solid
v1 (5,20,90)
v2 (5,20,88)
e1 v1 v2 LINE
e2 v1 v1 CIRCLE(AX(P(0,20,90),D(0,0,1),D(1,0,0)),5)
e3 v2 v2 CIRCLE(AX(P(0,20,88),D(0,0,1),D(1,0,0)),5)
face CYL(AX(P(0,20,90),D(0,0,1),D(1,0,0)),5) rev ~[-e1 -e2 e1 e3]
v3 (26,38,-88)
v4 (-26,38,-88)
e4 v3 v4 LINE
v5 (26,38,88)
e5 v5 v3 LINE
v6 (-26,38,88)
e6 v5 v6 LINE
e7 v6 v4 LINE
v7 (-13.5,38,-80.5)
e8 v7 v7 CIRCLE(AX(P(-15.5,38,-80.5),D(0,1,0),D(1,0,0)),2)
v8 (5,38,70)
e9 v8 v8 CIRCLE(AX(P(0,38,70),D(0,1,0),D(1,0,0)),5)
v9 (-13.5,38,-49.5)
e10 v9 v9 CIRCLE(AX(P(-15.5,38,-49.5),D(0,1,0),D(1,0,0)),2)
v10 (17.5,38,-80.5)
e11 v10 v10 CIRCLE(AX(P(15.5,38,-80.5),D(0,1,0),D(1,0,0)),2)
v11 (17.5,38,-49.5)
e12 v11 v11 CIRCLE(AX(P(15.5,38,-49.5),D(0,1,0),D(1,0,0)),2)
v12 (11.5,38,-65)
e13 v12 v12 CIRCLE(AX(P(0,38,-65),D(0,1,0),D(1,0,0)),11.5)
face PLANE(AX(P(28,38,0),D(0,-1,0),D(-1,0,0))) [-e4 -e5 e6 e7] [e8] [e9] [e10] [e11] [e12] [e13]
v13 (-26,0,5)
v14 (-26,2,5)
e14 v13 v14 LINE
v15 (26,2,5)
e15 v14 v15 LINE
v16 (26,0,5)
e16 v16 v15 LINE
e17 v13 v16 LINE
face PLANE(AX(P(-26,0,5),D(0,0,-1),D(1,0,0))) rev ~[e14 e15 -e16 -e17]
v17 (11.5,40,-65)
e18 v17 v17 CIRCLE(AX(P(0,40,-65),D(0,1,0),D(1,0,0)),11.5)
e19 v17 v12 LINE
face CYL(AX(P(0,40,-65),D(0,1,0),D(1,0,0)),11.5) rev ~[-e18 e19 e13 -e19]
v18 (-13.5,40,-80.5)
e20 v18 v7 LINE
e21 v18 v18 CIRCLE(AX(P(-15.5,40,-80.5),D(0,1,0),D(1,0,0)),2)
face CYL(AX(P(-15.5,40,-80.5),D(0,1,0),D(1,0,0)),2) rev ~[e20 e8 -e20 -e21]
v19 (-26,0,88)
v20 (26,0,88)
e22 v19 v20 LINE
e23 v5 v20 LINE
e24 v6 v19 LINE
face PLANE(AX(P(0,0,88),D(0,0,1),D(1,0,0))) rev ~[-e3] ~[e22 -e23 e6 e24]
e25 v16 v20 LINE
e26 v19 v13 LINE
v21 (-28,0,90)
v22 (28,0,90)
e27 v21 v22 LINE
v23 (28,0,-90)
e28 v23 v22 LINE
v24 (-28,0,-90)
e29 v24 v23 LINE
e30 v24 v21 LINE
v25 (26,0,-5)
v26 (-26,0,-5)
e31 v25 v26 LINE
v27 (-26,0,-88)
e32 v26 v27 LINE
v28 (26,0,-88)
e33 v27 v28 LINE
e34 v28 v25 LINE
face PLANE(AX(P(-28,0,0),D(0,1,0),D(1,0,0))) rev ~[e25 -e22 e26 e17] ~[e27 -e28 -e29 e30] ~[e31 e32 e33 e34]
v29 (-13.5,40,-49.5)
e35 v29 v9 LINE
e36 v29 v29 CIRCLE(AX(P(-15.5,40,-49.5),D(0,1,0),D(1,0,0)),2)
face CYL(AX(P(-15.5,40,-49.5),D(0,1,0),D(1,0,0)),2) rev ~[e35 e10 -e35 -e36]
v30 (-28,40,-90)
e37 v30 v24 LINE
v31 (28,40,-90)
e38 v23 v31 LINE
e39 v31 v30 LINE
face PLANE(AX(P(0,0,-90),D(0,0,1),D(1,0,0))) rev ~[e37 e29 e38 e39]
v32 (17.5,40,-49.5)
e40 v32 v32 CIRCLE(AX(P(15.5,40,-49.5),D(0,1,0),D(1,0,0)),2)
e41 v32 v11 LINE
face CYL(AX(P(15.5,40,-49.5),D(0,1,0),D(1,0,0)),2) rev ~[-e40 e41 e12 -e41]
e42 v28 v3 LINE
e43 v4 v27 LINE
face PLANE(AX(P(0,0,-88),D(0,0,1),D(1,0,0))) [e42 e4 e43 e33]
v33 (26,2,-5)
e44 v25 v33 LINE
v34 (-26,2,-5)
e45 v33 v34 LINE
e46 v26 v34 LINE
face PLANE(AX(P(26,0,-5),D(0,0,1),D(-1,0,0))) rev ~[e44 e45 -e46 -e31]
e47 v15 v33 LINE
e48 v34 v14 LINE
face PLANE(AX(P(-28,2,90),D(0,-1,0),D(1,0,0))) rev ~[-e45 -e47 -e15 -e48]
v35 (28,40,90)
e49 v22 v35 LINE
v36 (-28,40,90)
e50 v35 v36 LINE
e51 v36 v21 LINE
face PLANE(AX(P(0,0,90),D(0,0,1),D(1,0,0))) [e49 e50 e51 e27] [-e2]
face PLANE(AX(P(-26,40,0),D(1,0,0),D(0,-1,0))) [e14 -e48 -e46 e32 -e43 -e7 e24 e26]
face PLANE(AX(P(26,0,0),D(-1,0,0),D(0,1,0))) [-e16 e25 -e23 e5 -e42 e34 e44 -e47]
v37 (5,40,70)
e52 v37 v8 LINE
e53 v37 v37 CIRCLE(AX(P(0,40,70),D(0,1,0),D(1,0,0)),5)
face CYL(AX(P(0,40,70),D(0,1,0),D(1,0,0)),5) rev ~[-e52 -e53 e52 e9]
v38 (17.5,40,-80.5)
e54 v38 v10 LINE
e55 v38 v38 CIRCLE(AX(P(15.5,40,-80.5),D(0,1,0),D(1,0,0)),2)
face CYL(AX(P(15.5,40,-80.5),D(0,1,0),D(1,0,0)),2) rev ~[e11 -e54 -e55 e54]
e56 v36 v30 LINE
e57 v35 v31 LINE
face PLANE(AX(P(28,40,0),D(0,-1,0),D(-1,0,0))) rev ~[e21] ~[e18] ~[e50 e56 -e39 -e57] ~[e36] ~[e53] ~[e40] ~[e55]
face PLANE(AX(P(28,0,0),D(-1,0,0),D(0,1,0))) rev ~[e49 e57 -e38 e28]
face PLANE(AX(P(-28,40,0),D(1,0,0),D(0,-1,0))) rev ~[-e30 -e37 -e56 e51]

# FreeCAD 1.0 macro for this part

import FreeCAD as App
import Part
import Sketcher
Q = App.Units.Quantity


def faces_at(feature, points):
    """Names of the faces that lie closest to the given points."""
    faces = feature.Shape.Faces
    near = lambda p: min(range(len(faces)), key=lambda i: faces[i].distToShape(Part.Vertex(*p))[0])
    return sorted({f"Face{near(p) + 1}" for p in points})


def add_polygon(sketch, points):
    """Adds a closed chain of lines whose ends are joined by coincident constraints."""
    first, n = sketch.GeometryCount, len(points)
    for a, b in zip(points, points[1:] + points[:1]):
        sketch.addGeometry(Part.LineSegment(App.Vector(*a, 0), App.Vector(*b, 0)), False)
    for i in range(n):
        sketch.addConstraint(Sketcher.Constraint("Coincident", first + i, 2, first + (i + 1) % n, 1))

doc = App.newDocument("Part")
body = doc.addObject("PartDesign::Body", "Body")

# Sketch on XY plane
sketch1 = body.newObject("Sketcher::SketchObject", "Sketch")
sketch1.AttachmentSupport = (doc.getObject("XY_Plane"), [""])
sketch1.MapMode = "FlatFace"
add_polygon(sketch1, [(-28, 40), (-28, 0), (28, 0), (28, 40)])  # lines 0-3
sketch1.addConstraint([
    Sketcher.Constraint("Vertical", 0),
    Sketcher.Constraint("Horizontal", 1),
    Sketcher.Constraint("Vertical", 2),
    Sketcher.Constraint("Horizontal", 3),
    Sketcher.Constraint("Symmetric", 0, 2, 1, 2, -1, 1),
    Sketcher.Constraint("DistanceX", 1, 1, 1, 2, Q("56 mm")),
    Sketcher.Constraint("DistanceY", 0, 2, 0, 1, Q("40 mm")),
])
pad1 = body.newObject("PartDesign::Pad", "Pad")
pad1.Profile = sketch1
pad1.Length = 180
pad1.Midplane = True
doc.recompute()

thickness = body.newObject("PartDesign::Thickness", "Thickness")
thickness.Base = (pad1, faces_at(pad1, [(-9.333, 0, 30)]))
thickness.Value = 2
thickness.Reversed = True
thickness.Join = "Intersection"

# Sketch on XY plane
sketch2 = body.newObject("Sketcher::SketchObject", "Sketch001")
sketch2.AttachmentSupport = (doc.getObject("XY_Plane"), [""])
sketch2.MapMode = "FlatFace"
sketch2.AttachmentOffset = App.Placement(App.Vector(0, 0, 90), App.Rotation())
sketch2.addGeometry(Part.Circle(App.Vector(0, 20, 0), App.Vector(0, 0, 1), 5), False)
sketch2.addConstraint([
    Sketcher.Constraint("PointOnObject", 0, 3, -2),
    Sketcher.Constraint("Diameter", 0, Q("10 mm")),
    Sketcher.Constraint("DistanceY", -1, 1, 0, 3, Q("20 mm")),
])
pocket1 = body.newObject("PartDesign::Pocket", "Pocket")
pocket1.Profile = sketch2
pocket1.Length = 2

# Sketch on XZ plane
sketch3 = body.newObject("Sketcher::SketchObject", "Sketch002")
sketch3.AttachmentSupport = (doc.getObject("XZ_Plane"), [""])
sketch3.MapMode = "FlatFace"
sketch3.AttachmentOffset = App.Placement(App.Vector(0, 0, -40), App.Rotation())
sketch3.addGeometry([
    Part.Circle(App.Vector(0, -65, 0), App.Vector(0, 0, 1), 11.5),  # 0
    Part.Circle(App.Vector(-15.5, -49.5, 0), App.Vector(0, 0, 1), 2),  # 1
    Part.Circle(App.Vector(15.5, -80.5, 0), App.Vector(0, 0, 1), 2),  # 2
    Part.Circle(App.Vector(-15.5, -80.5, 0), App.Vector(0, 0, 1), 2),  # 3
    Part.Circle(App.Vector(15.5, -49.5, 0), App.Vector(0, 0, 1), 2),  # 4
    Part.Circle(App.Vector(0, 70, 0), App.Vector(0, 0, 1), 5),  # 5
], False)
sketch3.addConstraint([
    Sketcher.Constraint("Equal", 1, 2),
    Sketcher.Constraint("Equal", 2, 3),
    Sketcher.Constraint("Equal", 3, 4),
    Sketcher.Constraint("Symmetric", 2, 3, 3, 3, -2),
    Sketcher.Constraint("Symmetric", 1, 3, 4, 3, -2),
    Sketcher.Constraint("PointOnObject", 0, 3, -2),
    Sketcher.Constraint("PointOnObject", 5, 3, -2),
    Sketcher.Constraint("Vertical", 1, 3, 3, 3),
    Sketcher.Constraint("Diameter", 0, Q("23 mm")),
    Sketcher.Constraint("Diameter", 1, Q("4 mm")),
    Sketcher.Constraint("Diameter", 5, Q("10 mm")),
    Sketcher.Constraint("DistanceX", 1, 3, 2, 3, Q("31 mm")),
    Sketcher.Constraint("DistanceY", 2, 3, 1, 3, Q("31 mm")),
    Sketcher.Constraint("DistanceY", 0, 3, -1, 1, Q("65 mm")),
    Sketcher.Constraint("DistanceY", -1, 1, 5, 3, Q("70 mm")),
    Sketcher.Constraint("DistanceY", 1, 3, -1, 1, Q("49.5 mm")),
])
pocket2 = body.newObject("PartDesign::Pocket", "Pocket001")
pocket2.Profile = sketch3
pocket2.Length = 2
pocket2.Reversed = True

# Sketch on XZ plane
sketch4 = body.newObject("Sketcher::SketchObject", "Sketch003")
sketch4.AttachmentSupport = (doc.getObject("XZ_Plane"), [""])
sketch4.MapMode = "FlatFace"
add_polygon(sketch4, [(-26, 5), (-26, -5), (26, -5), (26, 5)])  # lines 0-3
sketch4.addConstraint([
    Sketcher.Constraint("Vertical", 0),
    Sketcher.Constraint("Horizontal", 1),
    Sketcher.Constraint("Vertical", 2),
    Sketcher.Constraint("Horizontal", 3),
    Sketcher.Constraint("Symmetric", 0, 2, 2, 2, -1, 1),
    Sketcher.Constraint("DistanceY", 0, 2, 0, 1, Q("10 mm")),
    Sketcher.Constraint("DistanceX", 1, 1, 1, 2, Q("52 mm")),
])
pad2 = body.newObject("PartDesign::Pad", "Pad001")
pad2.Profile = sketch4
pad2.Length = 2
pad2.Reversed = True

doc.recompute()
